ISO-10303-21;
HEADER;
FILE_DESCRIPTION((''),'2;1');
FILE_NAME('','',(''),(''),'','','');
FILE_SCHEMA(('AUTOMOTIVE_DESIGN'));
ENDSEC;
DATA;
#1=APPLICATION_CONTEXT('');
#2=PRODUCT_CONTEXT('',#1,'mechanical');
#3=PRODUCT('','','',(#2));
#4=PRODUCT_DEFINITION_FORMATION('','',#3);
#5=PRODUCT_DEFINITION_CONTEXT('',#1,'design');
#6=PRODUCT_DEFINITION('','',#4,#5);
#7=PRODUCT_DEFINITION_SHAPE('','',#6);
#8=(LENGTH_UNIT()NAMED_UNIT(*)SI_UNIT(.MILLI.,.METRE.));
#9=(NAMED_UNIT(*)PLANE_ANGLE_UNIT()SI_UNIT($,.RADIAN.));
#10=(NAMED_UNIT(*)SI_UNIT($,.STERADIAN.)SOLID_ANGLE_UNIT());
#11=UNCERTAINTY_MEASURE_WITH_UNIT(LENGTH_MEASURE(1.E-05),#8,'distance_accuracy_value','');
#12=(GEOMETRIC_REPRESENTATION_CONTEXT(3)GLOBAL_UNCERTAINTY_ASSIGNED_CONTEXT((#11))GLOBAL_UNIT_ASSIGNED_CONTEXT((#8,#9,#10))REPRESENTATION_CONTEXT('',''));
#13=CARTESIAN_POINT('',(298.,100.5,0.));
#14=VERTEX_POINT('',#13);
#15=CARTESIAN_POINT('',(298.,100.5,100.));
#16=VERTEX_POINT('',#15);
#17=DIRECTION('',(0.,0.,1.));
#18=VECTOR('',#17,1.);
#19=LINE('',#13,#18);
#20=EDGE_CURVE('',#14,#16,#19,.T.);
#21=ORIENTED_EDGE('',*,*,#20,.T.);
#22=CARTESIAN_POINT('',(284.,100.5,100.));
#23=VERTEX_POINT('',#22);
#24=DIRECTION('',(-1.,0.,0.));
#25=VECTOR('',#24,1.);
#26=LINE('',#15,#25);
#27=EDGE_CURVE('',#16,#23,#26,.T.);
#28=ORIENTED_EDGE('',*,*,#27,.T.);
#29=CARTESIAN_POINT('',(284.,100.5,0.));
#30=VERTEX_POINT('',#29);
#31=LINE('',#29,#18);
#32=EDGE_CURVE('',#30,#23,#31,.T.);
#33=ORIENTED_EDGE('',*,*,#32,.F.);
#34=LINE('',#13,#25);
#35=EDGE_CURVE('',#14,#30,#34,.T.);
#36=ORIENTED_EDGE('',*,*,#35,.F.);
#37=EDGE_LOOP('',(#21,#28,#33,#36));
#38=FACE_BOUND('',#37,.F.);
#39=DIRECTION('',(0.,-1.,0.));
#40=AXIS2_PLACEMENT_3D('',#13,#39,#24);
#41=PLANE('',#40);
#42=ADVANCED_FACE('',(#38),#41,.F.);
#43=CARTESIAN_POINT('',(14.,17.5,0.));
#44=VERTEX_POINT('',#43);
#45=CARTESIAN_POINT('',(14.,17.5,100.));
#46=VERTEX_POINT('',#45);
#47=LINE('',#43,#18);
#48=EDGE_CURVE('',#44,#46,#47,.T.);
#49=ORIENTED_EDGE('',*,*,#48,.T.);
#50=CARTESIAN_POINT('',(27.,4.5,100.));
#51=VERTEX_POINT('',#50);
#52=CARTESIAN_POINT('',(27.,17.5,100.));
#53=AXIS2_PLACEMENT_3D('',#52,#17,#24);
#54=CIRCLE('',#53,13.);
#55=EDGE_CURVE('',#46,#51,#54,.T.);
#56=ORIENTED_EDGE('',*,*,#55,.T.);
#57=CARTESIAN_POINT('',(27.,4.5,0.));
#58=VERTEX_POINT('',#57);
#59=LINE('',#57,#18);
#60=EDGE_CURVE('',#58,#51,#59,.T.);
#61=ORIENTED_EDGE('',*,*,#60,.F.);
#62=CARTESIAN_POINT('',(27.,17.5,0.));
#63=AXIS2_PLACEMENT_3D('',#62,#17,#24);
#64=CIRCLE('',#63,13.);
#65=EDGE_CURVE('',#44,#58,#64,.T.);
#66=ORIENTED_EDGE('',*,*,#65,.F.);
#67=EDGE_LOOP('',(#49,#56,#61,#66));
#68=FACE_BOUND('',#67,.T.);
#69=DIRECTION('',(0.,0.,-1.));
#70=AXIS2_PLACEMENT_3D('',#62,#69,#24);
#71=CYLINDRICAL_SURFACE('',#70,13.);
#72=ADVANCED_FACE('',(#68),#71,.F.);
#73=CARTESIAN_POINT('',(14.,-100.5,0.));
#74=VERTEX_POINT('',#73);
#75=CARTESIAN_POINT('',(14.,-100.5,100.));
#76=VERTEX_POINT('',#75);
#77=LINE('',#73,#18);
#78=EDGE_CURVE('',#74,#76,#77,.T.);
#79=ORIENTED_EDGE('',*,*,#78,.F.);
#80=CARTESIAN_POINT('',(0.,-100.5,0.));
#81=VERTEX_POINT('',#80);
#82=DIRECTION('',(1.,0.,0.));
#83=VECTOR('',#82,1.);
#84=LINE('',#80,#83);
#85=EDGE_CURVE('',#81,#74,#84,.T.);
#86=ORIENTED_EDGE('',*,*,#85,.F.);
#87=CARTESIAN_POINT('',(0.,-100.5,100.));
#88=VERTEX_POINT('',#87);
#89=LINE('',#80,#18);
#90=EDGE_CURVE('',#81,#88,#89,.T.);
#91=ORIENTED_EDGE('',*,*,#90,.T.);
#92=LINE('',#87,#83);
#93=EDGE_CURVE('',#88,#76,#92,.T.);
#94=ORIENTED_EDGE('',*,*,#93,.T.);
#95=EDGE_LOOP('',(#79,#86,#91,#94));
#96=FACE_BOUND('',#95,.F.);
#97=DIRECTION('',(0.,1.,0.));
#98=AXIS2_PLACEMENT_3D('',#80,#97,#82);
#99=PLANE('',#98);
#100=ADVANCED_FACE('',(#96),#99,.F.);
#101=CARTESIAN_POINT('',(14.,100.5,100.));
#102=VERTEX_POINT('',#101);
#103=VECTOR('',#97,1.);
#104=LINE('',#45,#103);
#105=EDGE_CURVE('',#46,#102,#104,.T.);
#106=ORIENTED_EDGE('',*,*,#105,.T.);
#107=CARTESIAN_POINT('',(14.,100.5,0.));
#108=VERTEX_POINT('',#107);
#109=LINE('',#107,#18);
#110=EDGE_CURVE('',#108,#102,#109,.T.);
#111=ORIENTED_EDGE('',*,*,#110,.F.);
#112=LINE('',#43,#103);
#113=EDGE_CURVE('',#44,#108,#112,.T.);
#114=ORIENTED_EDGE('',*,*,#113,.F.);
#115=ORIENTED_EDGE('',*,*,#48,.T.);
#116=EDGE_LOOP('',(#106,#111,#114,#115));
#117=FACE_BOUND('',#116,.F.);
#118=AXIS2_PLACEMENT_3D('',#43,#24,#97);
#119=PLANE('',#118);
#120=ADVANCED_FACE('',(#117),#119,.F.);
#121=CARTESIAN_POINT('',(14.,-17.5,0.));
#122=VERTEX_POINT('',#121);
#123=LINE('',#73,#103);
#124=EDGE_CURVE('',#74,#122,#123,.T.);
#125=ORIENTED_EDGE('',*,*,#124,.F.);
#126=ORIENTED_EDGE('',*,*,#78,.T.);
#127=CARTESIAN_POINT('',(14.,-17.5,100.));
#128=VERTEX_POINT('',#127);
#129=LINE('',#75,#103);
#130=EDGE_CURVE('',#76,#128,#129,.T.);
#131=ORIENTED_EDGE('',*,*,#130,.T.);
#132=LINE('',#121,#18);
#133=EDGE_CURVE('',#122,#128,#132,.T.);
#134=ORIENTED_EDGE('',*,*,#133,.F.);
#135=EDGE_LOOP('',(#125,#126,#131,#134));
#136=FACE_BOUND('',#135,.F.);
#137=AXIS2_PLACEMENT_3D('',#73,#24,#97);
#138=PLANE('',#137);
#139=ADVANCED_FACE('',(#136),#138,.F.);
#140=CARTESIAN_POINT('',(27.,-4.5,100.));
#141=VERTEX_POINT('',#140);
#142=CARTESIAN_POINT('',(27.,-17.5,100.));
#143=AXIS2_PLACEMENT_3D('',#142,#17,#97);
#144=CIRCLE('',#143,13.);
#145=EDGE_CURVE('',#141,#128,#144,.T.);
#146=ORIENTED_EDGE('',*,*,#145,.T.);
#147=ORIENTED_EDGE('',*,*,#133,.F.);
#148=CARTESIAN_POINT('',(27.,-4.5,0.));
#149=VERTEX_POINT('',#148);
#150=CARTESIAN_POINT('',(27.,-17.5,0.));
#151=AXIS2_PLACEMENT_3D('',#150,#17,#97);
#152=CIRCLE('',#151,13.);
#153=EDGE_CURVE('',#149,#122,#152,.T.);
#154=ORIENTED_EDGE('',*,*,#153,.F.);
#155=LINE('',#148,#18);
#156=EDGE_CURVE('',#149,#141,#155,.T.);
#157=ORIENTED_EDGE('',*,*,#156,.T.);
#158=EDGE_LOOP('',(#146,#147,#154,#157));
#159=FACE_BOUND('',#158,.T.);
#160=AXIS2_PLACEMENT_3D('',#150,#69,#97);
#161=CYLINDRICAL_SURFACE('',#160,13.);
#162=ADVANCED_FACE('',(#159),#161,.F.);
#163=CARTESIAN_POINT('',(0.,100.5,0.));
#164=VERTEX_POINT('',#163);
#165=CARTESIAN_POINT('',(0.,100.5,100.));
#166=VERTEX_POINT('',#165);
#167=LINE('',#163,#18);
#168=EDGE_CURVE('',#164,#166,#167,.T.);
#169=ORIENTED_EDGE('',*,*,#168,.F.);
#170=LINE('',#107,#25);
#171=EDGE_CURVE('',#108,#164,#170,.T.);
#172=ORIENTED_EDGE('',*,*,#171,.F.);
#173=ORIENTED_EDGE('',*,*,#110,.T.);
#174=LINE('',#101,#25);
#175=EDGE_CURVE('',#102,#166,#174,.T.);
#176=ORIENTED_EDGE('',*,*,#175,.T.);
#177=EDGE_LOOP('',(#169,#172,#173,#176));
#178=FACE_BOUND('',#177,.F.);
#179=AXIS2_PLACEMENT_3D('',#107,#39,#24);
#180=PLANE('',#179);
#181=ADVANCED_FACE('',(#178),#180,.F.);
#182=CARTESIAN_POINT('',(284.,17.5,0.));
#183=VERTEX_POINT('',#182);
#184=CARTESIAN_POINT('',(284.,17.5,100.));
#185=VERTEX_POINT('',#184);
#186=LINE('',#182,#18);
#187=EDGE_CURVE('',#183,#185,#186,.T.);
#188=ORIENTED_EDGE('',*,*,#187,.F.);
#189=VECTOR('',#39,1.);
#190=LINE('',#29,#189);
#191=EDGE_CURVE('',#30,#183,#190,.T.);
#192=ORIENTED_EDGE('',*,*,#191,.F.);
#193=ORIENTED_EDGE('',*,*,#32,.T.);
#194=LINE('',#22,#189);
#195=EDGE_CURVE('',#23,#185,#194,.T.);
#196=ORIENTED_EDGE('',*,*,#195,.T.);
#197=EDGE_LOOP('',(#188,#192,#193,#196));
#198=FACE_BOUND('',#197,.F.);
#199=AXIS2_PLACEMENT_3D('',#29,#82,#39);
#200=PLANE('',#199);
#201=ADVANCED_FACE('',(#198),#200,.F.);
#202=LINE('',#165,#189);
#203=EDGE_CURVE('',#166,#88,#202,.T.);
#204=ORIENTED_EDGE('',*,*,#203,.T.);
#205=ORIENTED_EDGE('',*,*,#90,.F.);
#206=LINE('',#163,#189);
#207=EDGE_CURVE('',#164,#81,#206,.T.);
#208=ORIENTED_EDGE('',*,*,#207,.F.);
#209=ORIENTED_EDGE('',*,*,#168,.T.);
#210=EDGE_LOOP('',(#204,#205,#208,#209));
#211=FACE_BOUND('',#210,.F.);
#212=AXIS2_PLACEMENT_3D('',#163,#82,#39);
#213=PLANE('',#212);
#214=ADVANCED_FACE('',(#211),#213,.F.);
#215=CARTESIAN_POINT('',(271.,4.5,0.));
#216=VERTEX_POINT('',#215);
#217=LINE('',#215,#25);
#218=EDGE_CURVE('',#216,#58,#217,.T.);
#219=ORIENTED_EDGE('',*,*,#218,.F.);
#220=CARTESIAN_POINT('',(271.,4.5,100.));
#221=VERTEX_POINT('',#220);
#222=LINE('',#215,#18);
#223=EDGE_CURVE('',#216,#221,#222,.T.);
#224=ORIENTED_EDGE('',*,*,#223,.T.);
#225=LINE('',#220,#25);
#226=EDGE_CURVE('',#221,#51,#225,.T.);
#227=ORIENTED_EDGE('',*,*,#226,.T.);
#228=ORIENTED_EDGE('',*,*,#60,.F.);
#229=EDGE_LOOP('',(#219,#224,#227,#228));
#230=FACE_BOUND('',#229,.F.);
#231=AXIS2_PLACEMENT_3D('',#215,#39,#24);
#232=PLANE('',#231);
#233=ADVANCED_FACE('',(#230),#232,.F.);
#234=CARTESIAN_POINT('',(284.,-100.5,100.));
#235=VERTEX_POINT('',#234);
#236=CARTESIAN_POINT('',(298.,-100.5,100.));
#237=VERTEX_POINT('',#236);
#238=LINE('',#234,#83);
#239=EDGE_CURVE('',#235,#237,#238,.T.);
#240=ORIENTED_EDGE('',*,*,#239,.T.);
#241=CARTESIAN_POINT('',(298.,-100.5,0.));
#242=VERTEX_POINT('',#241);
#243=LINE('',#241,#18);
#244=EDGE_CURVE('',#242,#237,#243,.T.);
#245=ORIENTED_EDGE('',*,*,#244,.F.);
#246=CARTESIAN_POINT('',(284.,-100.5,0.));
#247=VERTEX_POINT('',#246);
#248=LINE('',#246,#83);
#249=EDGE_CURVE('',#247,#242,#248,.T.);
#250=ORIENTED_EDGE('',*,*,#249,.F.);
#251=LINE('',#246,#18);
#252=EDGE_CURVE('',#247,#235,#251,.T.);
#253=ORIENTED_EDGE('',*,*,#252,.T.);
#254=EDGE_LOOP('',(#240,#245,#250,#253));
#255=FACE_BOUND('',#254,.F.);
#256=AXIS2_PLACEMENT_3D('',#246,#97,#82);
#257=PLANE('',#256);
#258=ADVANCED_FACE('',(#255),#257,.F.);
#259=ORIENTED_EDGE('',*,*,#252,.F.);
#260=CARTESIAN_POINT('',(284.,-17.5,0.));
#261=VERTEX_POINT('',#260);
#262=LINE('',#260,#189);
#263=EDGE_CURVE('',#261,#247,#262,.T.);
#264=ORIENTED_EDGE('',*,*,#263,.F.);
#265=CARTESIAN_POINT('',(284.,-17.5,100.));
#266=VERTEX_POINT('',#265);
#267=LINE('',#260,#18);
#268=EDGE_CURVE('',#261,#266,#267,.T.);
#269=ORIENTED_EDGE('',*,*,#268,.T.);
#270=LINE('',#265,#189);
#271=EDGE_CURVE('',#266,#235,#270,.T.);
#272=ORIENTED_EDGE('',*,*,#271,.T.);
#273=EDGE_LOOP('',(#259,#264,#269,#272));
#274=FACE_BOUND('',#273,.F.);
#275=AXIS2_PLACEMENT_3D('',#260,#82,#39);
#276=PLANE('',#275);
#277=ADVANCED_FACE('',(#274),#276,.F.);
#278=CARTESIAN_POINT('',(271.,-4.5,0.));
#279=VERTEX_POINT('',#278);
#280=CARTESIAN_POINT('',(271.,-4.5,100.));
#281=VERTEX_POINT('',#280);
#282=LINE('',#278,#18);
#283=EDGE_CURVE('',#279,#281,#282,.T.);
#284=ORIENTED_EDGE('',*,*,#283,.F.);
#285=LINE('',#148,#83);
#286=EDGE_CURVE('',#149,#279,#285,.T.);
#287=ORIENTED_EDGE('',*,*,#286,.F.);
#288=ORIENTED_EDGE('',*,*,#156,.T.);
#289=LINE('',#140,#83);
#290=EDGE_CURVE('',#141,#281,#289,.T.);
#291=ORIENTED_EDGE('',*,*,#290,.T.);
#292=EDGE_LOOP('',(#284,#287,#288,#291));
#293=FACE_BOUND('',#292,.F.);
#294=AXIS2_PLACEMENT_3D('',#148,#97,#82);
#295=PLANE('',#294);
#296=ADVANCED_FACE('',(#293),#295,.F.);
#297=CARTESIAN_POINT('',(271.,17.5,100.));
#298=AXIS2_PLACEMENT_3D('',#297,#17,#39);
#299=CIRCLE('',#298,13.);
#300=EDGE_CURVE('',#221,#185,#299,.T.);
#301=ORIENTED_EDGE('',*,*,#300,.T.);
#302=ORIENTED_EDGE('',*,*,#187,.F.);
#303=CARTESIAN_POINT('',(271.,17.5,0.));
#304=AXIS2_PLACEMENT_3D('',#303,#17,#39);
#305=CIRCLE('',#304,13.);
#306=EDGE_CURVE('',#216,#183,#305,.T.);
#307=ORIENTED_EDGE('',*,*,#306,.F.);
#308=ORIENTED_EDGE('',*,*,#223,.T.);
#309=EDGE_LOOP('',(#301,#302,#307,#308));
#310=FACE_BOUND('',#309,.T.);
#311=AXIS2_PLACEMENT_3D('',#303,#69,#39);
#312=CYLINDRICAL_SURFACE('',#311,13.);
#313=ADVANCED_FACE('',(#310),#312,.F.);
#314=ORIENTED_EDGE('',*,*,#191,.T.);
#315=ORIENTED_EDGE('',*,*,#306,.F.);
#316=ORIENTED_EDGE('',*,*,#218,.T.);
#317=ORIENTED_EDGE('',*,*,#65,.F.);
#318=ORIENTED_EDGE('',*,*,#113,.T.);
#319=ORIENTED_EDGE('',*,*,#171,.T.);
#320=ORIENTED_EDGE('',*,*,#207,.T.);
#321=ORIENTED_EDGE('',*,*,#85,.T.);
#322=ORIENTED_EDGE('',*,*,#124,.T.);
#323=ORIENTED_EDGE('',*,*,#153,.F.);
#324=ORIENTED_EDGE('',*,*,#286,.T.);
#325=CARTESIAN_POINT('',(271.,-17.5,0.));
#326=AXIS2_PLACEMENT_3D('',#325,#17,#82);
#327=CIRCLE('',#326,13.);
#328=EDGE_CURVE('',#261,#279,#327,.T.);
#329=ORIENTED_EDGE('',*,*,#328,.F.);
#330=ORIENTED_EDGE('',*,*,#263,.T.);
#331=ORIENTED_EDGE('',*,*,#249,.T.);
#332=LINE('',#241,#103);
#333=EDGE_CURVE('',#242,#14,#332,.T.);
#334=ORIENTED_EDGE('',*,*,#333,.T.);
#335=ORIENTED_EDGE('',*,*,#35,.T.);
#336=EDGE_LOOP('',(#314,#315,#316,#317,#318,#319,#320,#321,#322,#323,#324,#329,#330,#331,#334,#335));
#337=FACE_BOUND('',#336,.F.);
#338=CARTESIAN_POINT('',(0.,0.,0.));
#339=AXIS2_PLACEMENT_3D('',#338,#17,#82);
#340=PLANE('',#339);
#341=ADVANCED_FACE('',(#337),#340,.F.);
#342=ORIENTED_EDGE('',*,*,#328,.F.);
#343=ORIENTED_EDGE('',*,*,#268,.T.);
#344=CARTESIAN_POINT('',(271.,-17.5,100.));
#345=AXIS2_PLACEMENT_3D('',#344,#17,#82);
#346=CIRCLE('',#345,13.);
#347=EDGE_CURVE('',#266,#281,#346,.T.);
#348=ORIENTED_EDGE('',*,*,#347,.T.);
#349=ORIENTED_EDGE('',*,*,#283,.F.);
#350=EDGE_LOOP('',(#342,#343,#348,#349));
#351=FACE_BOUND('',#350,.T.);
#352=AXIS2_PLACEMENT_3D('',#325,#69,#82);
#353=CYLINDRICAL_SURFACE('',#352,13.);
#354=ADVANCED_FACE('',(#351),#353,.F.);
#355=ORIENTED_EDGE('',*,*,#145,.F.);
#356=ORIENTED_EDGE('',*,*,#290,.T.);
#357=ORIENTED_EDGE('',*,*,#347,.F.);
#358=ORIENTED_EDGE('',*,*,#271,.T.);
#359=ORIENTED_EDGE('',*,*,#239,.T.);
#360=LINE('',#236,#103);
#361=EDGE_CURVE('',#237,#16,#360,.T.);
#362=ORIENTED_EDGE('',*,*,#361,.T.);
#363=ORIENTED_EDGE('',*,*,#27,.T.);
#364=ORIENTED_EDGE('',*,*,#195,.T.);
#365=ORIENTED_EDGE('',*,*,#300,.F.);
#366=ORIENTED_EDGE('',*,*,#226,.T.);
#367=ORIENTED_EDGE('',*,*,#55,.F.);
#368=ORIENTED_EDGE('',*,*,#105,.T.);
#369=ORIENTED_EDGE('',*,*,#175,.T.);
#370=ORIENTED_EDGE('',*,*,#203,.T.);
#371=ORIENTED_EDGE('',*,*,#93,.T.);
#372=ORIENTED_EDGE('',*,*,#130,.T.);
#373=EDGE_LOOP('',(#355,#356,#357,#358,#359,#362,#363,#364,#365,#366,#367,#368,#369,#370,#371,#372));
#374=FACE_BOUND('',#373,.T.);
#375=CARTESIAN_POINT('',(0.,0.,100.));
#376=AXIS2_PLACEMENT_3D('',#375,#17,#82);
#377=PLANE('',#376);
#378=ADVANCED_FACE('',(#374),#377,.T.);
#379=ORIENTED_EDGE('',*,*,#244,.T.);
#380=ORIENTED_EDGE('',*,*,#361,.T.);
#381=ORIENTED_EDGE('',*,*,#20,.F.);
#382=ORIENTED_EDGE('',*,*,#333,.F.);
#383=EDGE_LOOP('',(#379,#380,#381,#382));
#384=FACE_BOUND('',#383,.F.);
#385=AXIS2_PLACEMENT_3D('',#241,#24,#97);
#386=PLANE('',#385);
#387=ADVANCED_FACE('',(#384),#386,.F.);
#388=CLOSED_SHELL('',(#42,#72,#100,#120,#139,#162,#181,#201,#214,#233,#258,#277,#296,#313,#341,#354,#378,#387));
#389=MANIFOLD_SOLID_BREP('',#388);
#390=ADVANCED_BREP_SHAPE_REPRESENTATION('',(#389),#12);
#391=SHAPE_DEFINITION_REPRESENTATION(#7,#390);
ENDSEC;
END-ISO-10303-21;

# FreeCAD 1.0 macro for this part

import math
import FreeCAD as App
import Part
import Sketcher

V = App.Vector
Q = App.Units.Quantity

doc = App.newDocument("Part")
params = doc.addObject("Spreadsheet::Sheet", "Params")
for row, (alias, value) in enumerate([
    ("sketch1_radius", "13 mm"),
    ("sketch1_width", "14 mm"),
    ("sketch1_width2", "244 mm"),
    ("sketch1_height", "201 mm"),
    ("sketch1_height2", "83 mm"),
    ("pad1_length", "100 mm"),
], start=1):
    params.set(f"A{row}", alias)
    params.set(f"B{row}", "=" + value)
    params.setAlias(f"B{row}", alias)

body = doc.addObject("PartDesign::Body", "Body")

sketch1 = doc.addObject("Sketcher::SketchObject", "Sketch")
body.addObject(sketch1)
sketch1.AttachmentSupport = (doc.XY_Plane, [""])
sketch1.MapMode = "FlatFace"
sketch1.addGeometry([
    Part.LineSegment(V(14, 100, 0), V(0, 100, 0)),
    Part.LineSegment(V(0, 100, 0), V(0, -100, 0)),
    Part.LineSegment(V(0, -100, 0), V(14, -100, 0)),
    Part.LineSegment(V(14, -100, 0), V(14, -18, 0)),
    Part.ArcOfCircle(Part.Circle(V(27, -18, 0), V(0, 0, 1), 13), math.radians(90), math.radians(180)),
    Part.LineSegment(V(27, -4, 0), V(271, -4, 0)),
    Part.ArcOfCircle(Part.Circle(V(271, -18, 0), V(0, 0, 1), 13), math.radians(0), math.radians(90)),
    Part.LineSegment(V(284, -18, 0), V(284, -100, 0)),
    Part.LineSegment(V(284, -100, 0), V(298, -100, 0)),
    Part.LineSegment(V(298, -100, 0), V(298, 100, 0)),
    Part.LineSegment(V(298, 100, 0), V(284, 100, 0)),
    Part.LineSegment(V(284, 100, 0), V(284, 18, 0)),
    Part.ArcOfCircle(Part.Circle(V(271, 18, 0), V(0, 0, 1), 13), math.radians(-90), math.radians(0)),
    Part.LineSegment(V(271, 4, 0), V(27, 4, 0)),
    Part.ArcOfCircle(Part.Circle(V(27, 18, 0), V(0, 0, 1), 13), math.radians(180), math.radians(270)),
    Part.LineSegment(V(14, 18, 0), V(14, 100, 0)),
], False)
sketch1.addConstraint([
    Sketcher.Constraint("Coincident", 0, 2, 1, 1),
    Sketcher.Constraint("Coincident", 1, 2, 2, 1),
    Sketcher.Constraint("Coincident", 2, 2, 3, 1),
    Sketcher.Constraint("Tangent", 3, 2, 4, 2),
    Sketcher.Constraint("Tangent", 4, 1, 5, 1),
    Sketcher.Constraint("Tangent", 5, 2, 6, 2),
    Sketcher.Constraint("Tangent", 6, 1, 7, 1),
    Sketcher.Constraint("Coincident", 7, 2, 8, 1),
    Sketcher.Constraint("Coincident", 8, 2, 9, 1),
    Sketcher.Constraint("Coincident", 9, 2, 10, 1),
    Sketcher.Constraint("Coincident", 10, 2, 11, 1),
    Sketcher.Constraint("Tangent", 11, 2, 12, 2),
    Sketcher.Constraint("Tangent", 12, 1, 13, 1),
    Sketcher.Constraint("Tangent", 13, 2, 14, 2),
    Sketcher.Constraint("Tangent", 14, 1, 15, 1),
    Sketcher.Constraint("Coincident", 15, 2, 0, 1),
    Sketcher.Constraint("Horizontal", 0),
    Sketcher.Constraint("Vertical", 1),
    Sketcher.Constraint("Horizontal", 2),
    Sketcher.Constraint("Vertical", 3),
    Sketcher.Constraint("Horizontal", 5),
    Sketcher.Constraint("Vertical", 7),
    Sketcher.Constraint("Horizontal", 8),
    Sketcher.Constraint("Vertical", 9),
    Sketcher.Constraint("Horizontal", 10),
    Sketcher.Constraint("Vertical", 11),
    Sketcher.Constraint("Horizontal", 13),
    Sketcher.Constraint("Vertical", 15),
    Sketcher.Constraint("Equal", 4, 6),
    Sketcher.Constraint("Equal", 6, 12),
    Sketcher.Constraint("Equal", 12, 14),
    Sketcher.Constraint("Symmetric", 0, 2, 1, 2, -1, 1),
    Sketcher.Constraint("Symmetric", 6, 3, 12, 3, -1),
    Sketcher.Constraint("Horizontal", 2, 2, 7, 2),
    Sketcher.Constraint("Horizontal", 0, 2, 9, 2),
    Sketcher.Constraint("Vertical", 4, 3, 14, 3),
    Sketcher.Constraint("Equal", 2, 8),
    Sketcher.Constraint("Radius", 4, Q("13 mm")),
    Sketcher.Constraint("DistanceX", 0, 2, 0, 1, Q("14 mm")),
    Sketcher.Constraint("DistanceX", 5, 1, 5, 2, Q("244 mm")),
    Sketcher.Constraint("DistanceY", 1, 2, 1, 1, Q("201 mm")),
    Sketcher.Constraint("DistanceY", 3, 1, 3, 2, Q("83 mm")),
])
sketch1.setExpression("Constraints[37]", "Params.sketch1_radius")
sketch1.setExpression("Constraints[38]", "Params.sketch1_width")
sketch1.setExpression("Constraints[39]", "Params.sketch1_width2")
sketch1.setExpression("Constraints[40]", "Params.sketch1_height")
sketch1.setExpression("Constraints[41]", "Params.sketch1_height2")
pad1 = doc.addObject("PartDesign::Pad", "Pad")
body.addObject(pad1)
pad1.Profile = sketch1
pad1.setExpression("Length", "Params.pad1_length")

doc.recompute()
